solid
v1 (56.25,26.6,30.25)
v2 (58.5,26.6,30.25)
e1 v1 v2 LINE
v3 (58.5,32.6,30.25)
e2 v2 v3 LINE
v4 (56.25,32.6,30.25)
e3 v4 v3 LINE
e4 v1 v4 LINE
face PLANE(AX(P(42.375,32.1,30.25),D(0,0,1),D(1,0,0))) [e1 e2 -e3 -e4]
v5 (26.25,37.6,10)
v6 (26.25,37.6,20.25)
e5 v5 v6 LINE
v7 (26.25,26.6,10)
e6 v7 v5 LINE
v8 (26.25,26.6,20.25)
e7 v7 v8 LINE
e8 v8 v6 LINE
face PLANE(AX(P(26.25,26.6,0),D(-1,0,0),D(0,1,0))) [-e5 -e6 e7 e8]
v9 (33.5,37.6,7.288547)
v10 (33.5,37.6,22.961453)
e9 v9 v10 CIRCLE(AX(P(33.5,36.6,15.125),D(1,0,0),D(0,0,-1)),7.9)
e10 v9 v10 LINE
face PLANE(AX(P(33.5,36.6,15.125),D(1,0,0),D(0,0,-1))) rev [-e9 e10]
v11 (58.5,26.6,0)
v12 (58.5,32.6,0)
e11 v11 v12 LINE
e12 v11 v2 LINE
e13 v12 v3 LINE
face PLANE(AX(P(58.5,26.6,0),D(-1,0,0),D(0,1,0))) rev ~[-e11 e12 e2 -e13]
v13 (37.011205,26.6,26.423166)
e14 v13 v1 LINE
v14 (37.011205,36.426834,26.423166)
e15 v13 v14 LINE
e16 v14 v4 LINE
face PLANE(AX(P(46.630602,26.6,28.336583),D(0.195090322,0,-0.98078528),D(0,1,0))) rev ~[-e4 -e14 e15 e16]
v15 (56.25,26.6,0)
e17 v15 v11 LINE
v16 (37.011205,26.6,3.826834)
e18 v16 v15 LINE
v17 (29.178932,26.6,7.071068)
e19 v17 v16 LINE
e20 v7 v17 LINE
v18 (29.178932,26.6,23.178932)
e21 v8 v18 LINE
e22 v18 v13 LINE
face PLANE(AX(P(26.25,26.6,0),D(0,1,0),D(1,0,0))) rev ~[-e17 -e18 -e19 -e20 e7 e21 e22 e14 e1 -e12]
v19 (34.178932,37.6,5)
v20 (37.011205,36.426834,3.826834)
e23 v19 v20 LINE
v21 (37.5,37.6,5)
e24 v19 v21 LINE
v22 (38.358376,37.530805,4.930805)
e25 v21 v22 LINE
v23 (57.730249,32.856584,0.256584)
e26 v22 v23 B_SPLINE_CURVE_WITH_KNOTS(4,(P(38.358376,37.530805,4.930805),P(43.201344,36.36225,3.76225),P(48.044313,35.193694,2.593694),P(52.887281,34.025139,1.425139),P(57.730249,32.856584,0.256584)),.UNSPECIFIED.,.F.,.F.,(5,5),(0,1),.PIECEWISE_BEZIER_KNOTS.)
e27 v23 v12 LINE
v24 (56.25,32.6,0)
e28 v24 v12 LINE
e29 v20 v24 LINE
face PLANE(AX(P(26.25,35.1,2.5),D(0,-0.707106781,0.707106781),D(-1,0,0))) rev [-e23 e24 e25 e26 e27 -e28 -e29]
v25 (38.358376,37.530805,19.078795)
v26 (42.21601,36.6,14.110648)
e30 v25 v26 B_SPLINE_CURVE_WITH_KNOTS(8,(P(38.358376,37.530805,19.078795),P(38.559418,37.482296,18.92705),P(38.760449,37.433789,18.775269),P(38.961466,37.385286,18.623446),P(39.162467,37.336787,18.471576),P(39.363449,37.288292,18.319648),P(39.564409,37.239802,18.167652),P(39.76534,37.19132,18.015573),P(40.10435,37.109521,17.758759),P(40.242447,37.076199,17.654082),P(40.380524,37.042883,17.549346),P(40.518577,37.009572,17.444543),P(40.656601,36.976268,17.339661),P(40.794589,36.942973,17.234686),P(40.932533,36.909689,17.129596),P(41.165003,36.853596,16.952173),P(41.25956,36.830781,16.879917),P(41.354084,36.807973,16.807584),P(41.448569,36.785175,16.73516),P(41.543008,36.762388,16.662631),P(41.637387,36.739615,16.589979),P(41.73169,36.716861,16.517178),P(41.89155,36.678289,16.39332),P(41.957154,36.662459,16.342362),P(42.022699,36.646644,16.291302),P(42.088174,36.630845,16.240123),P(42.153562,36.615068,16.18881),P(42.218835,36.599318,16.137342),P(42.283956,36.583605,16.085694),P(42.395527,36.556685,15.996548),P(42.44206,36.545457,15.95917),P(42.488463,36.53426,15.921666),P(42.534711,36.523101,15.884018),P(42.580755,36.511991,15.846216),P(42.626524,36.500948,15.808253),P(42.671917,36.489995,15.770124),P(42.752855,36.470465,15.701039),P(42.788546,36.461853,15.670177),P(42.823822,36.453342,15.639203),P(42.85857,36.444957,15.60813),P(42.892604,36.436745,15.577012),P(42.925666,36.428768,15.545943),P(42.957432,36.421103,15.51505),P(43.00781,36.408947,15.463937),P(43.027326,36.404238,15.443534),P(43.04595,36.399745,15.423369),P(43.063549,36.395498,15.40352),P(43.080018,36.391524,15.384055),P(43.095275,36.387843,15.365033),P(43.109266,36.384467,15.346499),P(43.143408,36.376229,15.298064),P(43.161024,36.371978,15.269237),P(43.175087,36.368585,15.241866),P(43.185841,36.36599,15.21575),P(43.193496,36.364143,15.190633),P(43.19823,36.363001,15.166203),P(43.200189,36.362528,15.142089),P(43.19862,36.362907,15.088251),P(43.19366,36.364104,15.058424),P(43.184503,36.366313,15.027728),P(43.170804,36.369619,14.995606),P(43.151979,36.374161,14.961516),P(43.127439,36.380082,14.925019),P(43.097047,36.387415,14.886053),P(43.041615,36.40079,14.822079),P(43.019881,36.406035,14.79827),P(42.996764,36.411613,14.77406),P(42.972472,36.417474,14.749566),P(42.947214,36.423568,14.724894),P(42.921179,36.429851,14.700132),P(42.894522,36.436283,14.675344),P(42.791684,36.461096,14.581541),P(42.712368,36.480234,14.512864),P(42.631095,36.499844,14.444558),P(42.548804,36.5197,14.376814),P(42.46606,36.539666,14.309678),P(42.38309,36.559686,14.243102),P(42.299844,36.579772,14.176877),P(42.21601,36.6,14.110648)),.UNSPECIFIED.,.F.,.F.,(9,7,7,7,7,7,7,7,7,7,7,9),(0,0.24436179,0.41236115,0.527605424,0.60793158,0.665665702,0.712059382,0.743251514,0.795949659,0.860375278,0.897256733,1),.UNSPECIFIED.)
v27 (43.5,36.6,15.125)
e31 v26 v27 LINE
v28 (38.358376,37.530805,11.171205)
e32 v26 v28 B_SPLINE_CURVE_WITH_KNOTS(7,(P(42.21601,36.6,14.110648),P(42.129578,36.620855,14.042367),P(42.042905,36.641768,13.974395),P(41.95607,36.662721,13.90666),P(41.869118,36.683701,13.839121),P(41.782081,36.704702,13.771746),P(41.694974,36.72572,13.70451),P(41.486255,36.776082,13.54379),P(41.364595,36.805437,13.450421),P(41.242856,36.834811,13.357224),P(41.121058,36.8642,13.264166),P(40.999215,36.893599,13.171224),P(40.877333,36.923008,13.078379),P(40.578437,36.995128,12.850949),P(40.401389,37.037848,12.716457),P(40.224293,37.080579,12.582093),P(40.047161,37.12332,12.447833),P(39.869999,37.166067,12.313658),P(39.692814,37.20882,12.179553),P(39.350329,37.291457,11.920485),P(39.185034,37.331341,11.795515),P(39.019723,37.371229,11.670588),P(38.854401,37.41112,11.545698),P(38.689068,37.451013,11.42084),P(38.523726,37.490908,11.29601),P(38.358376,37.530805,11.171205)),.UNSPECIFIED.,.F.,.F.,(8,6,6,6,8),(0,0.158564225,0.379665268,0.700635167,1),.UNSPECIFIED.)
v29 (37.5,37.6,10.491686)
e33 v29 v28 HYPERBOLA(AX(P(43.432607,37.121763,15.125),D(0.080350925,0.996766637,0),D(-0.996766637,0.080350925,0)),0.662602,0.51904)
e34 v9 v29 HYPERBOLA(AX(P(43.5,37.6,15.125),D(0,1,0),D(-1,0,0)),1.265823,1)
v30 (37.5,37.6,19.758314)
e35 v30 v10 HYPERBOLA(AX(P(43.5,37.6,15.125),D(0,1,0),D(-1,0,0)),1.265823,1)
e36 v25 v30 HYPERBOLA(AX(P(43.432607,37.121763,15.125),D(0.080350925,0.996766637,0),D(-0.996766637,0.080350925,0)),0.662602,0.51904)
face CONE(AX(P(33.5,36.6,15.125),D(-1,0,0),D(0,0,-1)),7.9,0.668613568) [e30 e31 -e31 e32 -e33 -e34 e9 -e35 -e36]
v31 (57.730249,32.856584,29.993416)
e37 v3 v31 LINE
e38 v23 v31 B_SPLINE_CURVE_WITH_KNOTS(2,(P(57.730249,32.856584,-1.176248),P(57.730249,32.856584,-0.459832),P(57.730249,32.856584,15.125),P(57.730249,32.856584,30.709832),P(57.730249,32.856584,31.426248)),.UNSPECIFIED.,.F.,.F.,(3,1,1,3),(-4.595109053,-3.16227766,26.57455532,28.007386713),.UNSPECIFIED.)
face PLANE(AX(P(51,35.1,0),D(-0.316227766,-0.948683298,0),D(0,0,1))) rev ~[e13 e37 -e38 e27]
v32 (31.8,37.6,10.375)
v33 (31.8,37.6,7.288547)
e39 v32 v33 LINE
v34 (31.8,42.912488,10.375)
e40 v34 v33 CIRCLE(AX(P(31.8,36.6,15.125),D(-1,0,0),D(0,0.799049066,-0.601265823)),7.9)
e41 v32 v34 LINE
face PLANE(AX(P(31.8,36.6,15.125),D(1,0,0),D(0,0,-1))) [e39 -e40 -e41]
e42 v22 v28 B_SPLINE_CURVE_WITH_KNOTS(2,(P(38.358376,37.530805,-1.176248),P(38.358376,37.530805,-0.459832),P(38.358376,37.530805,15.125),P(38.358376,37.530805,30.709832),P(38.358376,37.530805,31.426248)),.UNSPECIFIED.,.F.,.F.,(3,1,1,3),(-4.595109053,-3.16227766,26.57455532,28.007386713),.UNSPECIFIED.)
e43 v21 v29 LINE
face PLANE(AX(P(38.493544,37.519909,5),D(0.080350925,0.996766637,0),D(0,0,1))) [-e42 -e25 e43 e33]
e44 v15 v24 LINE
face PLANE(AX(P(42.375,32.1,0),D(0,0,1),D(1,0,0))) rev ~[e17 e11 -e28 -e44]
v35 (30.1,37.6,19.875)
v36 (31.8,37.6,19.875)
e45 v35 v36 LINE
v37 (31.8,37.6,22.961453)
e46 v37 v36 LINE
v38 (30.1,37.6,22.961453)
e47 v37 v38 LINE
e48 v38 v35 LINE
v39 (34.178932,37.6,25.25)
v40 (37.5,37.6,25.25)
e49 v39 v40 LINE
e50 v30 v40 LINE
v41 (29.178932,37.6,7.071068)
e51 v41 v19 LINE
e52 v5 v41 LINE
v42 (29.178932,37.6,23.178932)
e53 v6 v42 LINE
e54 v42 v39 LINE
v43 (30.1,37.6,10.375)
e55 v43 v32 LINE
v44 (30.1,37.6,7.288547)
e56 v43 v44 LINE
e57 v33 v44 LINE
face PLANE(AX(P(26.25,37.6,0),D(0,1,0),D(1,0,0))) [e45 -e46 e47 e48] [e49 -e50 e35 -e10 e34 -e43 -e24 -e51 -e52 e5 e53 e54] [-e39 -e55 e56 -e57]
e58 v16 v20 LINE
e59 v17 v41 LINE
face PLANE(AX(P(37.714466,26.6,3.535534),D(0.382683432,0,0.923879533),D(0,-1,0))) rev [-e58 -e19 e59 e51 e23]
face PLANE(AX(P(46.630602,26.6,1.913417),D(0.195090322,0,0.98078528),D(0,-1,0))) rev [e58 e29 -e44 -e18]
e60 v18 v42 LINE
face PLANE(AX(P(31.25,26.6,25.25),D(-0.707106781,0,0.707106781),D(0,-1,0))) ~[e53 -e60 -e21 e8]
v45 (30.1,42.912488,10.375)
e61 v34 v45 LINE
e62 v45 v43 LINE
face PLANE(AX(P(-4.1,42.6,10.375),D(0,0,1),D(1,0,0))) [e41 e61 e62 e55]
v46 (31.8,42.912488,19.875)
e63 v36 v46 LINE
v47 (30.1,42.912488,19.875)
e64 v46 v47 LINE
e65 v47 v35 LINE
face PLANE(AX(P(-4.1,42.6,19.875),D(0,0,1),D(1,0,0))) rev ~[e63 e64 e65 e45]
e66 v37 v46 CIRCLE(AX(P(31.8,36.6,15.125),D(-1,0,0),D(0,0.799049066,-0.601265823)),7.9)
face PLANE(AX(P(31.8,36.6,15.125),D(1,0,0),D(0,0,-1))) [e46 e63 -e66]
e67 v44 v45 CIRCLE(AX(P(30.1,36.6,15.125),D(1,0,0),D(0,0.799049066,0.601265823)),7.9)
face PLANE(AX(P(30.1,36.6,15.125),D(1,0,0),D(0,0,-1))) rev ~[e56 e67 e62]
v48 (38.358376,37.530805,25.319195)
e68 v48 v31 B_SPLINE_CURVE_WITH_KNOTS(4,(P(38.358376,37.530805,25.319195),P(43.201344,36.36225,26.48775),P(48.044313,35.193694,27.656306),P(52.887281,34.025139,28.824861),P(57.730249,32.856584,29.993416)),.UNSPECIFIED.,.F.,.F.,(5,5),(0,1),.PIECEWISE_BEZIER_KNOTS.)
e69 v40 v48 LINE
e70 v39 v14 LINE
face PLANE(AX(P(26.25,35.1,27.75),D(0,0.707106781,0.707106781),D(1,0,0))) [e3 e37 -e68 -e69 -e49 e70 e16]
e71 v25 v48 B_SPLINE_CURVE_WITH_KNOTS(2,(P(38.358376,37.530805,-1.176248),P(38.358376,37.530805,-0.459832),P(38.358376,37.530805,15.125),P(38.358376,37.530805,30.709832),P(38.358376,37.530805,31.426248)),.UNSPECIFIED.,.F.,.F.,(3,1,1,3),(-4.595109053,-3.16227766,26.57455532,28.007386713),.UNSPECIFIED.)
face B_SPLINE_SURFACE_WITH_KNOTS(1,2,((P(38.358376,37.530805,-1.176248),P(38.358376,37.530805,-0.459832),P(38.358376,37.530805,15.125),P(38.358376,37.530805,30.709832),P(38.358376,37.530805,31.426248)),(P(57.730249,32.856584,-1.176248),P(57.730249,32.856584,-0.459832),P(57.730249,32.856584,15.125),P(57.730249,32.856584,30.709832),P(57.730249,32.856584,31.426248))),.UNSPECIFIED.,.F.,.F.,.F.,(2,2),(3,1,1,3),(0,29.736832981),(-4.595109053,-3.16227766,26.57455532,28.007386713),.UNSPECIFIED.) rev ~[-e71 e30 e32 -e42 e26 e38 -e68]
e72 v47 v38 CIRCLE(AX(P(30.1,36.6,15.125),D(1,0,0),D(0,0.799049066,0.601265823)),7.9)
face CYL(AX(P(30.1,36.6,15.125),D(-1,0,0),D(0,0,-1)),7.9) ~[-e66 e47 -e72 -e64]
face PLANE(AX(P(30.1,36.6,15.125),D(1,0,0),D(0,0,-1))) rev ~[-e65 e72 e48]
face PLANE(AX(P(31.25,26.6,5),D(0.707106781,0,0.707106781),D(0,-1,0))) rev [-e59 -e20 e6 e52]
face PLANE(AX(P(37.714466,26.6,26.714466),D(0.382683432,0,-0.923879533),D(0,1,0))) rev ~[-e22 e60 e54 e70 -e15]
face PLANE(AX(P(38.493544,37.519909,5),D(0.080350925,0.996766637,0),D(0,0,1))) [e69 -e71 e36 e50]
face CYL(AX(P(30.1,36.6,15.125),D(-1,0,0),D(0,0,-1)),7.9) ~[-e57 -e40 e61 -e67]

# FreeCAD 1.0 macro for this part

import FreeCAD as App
import Part
import Sketcher
from FreeCAD import Vector


def edges_at(feature, points):
    """Names of the edges that pass closest to the given points."""
    edges = feature.Shape.Edges
    near = lambda p: min(range(len(edges)), key=lambda i: edges[i].distToShape(Part.Vertex(*p))[0])
    return sorted({f"Edge{near(p) + 1}" for p in points})


def add_polygon(sketch, points):
    """Adds a closed chain of lines whose ends are joined by coincident constraints."""
    first, n = sketch.GeometryCount, len(points)
    for a, b in zip(points, points[1:] + points[:1]):
        sketch.addGeometry(Part.LineSegment(App.Vector(*a, 0), App.Vector(*b, 0)), False)
    for i in range(n):
        sketch.addConstraint(Sketcher.Constraint("Coincident", first + i, 2, first + (i + 1) % n, 1))

doc = App.newDocument("Part")
body = doc.addObject("PartDesign::Body", "Body")

# Sketch on XY plane
sketch1 = doc.addObject("Sketcher::SketchObject", "Sketch")
body.addObject(sketch1)
sketch1.AttachmentSupport = (doc.XY_Plane, [""])
sketch1.MapMode = "FlatFace"
sketch1.AttachmentOffset = App.Placement(Vector(0, 0, 10.375), App.Rotation())
add_polygon(sketch1, [(-40, 48.6), (-40, 36.6), (31.8, 36.6), (31.8, 48.6)])  # lines 0-3
sketch1.addConstraint([
    Sketcher.Constraint("Vertical", 0),
    Sketcher.Constraint("Horizontal", 1),
    Sketcher.Constraint("Vertical", 2),
    Sketcher.Constraint("Horizontal", 3),
    Sketcher.Constraint("DistanceY", 0, 2, 0, 1, 12.0),
    Sketcher.Constraint("DistanceX", 1, 1, 1, 2, 71.8),
    Sketcher.Constraint("DistanceX", 0, 2, -1, 1, 40.0),
    Sketcher.Constraint("DistanceY", -1, 1, 0, 2, 36.6),
])
pad1 = doc.addObject("PartDesign::Pad", "Pad")
body.addObject(pad1)
pad1.Profile = sketch1
pad1.Length = 9.5
body2 = doc.addObject("PartDesign::Body", "Body001")

# Sketch on YZ plane
sketch2 = doc.addObject("Sketcher::SketchObject", "Sketch001")
body2.addObject(sketch2)
sketch2.AttachmentSupport = (doc.getObject("YZ_Plane001"), [""])
sketch2.MapMode = "FlatFace"
sketch2.AttachmentOffset = App.Placement(Vector(0, 0, 30.1), App.Rotation())
sketch2.addGeometry(Part.Circle(Vector(36.6, 15.125, 0), Vector(0, 0, 1), 7.9), False)
sketch2.addConstraint([
    Sketcher.Constraint("Diameter", 0, 15.8),
    Sketcher.Constraint("DistanceX", -1, 1, 0, 3, 36.6),
    Sketcher.Constraint("DistanceY", -1, 1, 0, 3, 15.125),
])
pad2 = doc.addObject("PartDesign::Pad", "Pad001")
body2.addObject(pad2)
pad2.Profile = sketch2
pad2.Length = 1.7
doc.recompute()

boolean = doc.addObject("PartDesign::Boolean", "Boolean")
body2.addObject(boolean)
boolean.Type = "Cut"
boolean.addObjects([body])
body3 = doc.addObject("PartDesign::Body", "Body002")

# Sketch on XZ plane
sketch3 = doc.addObject("Sketcher::SketchObject", "Sketch002")
body3.addObject(sketch3)
sketch3.AttachmentSupport = (doc.getObject("XZ_Plane002"), [""])
sketch3.MapMode = "FlatFace"
sketch3.AttachmentOffset = App.Placement(Vector(0, 0, -36.6), App.Rotation())
add_polygon(sketch3, [(33.5, 15.125), (33.5, 7.225), (43.5, 15.125)])  # lines 0-2
sketch3.addGeometry(Part.LineSegment(Vector(33.5, 15.125, 0), Vector(43.5, 15.125, 0)), True)  # axis
sketch3.addConstraint([
    Sketcher.Constraint("Vertical", 0),
    Sketcher.Constraint("Horizontal", 2),
    Sketcher.Constraint("Horizontal", 3),
    Sketcher.Constraint("Coincident", 3, 1, 2, 2),
    Sketcher.Constraint("Equal", 2, 3),
    Sketcher.Constraint("DistanceX", 2, 2, 2, 1, 10.0),
    Sketcher.Constraint("DistanceY", 0, 2, 0, 1, 7.9),
    Sketcher.Constraint("DistanceX", -1, 1, 0, 2, 33.5),
    Sketcher.Constraint("DistanceY", -1, 1, 0, 2, 7.225),
])
revolution = doc.addObject("PartDesign::Revolution", "Revolution")
body3.addObject(revolution)
revolution.Profile = sketch3
revolution.ReferenceAxis = (sketch3, ["Axis0"])
revolution.Angle = 360
body4 = doc.addObject("PartDesign::Body", "Body003")

# Sketch on XY plane
sketch4 = doc.addObject("Sketcher::SketchObject", "Sketch003")
body4.addObject(sketch4)
sketch4.AttachmentSupport = (doc.getObject("XY_Plane003"), [""])
sketch4.MapMode = "FlatFace"
add_polygon(sketch4, [(26.25, 37.6), (26.25, 26.6), (58.5, 26.6), (58.5, 37.6)])  # lines 0-3
sketch4.addConstraint([
    Sketcher.Constraint("Vertical", 0),
    Sketcher.Constraint("Horizontal", 1),
    Sketcher.Constraint("Vertical", 2),
    Sketcher.Constraint("Horizontal", 3),
    Sketcher.Constraint("DistanceY", 0, 2, 0, 1, 11.0),
    Sketcher.Constraint("DistanceX", 1, 1, 1, 2, 32.25),
    Sketcher.Constraint("DistanceY", -1, 1, 0, 2, 26.6),
    Sketcher.Constraint("DistanceX", -1, 1, 1, 2, 58.5),
])
pad3 = doc.addObject("PartDesign::Pad", "Pad002")
body4.addObject(pad3)
pad3.Profile = sketch4
pad3.Length = 30.25
doc.recompute()

chamfer = doc.addObject("PartDesign::Chamfer", "Chamfer")
body4.addObject(chamfer)
chamfer.Base = (pad3, edges_at(pad3, [(58.5, 37.6, 15.125)]))
chamfer.ChamferType = "Two distances"
chamfer.Size = 5
chamfer.Size2 = 15
doc.recompute()

chamfer2 = doc.addObject("PartDesign::Chamfer", "Chamfer001")
body4.addObject(chamfer2)
chamfer2.Base = (chamfer, edges_at(chamfer, [(34.875, 37.6, 30.25)]))
chamfer2.Size = 5
doc.recompute()

chamfer3 = doc.addObject("PartDesign::Chamfer", "Chamfer002")
body4.addObject(chamfer3)
chamfer3.Base = (chamfer2, edges_at(chamfer2, [(34.875, 37.6, 0)]))
chamfer3.Size = 5
doc.recompute()

chamfer4 = doc.addObject("PartDesign::Chamfer", "Chamfer003")
body4.addObject(chamfer4)
chamfer4.Base = (chamfer3, edges_at(chamfer3, [(26.25, 29.6, 0), (26.25, 29.6, 30.25)]))
chamfer4.Size = 10
doc.recompute()

chamfer5 = doc.addObject("PartDesign::Chamfer", "Chamfer004")
body4.addObject(chamfer5)
chamfer5.Base = (chamfer4, edges_at(chamfer4, [(36.25, 29.6, 0), (36.25, 29.6, 30.25)]))
chamfer5.Size = 10
doc.recompute()

chamfer6 = doc.addObject("PartDesign::Chamfer", "Chamfer005")
body4.addObject(chamfer6)
chamfer6.Base = (chamfer5, edges_at(chamfer5, [(46.25, 29.6, 30.25), (46.25, 29.6, 0)]))
chamfer6.Size = 10
doc.recompute()

chamfer7 = doc.addObject("PartDesign::Chamfer", "Chamfer006")
body4.addObject(chamfer7)
chamfer7.Base = (chamfer6, edges_at(chamfer6, [(43.5, 37.6, 15.125)]))
chamfer7.Size = 5
doc.recompute()

chamfer8 = doc.addObject("PartDesign::Chamfer", "Chamfer007")
body4.addObject(chamfer8)
chamfer8.Base = (chamfer7, edges_at(chamfer7, [(38.5, 37.6, 15.125)]))
chamfer8.Size = 1
doc.recompute()

chamfer9 = doc.addObject("PartDesign::Chamfer", "Chamfer008")
body4.addObject(chamfer9)
chamfer9.Base = (chamfer8, edges_at(chamfer8, [(48.243, 36.019, 15.125)]))
chamfer9.Size = 10
doc.recompute()

boolean2 = doc.addObject("PartDesign::Boolean", "Boolean001")
body4.addObject(boolean2)
boolean2.Type = "Fuse"
boolean2.addObjects([body3])
doc.recompute()

boolean3 = doc.addObject("PartDesign::Boolean", "Boolean002")
body4.addObject(boolean3)
boolean3.Type = "Fuse"
boolean3.addObjects([body2])

doc.recompute()
